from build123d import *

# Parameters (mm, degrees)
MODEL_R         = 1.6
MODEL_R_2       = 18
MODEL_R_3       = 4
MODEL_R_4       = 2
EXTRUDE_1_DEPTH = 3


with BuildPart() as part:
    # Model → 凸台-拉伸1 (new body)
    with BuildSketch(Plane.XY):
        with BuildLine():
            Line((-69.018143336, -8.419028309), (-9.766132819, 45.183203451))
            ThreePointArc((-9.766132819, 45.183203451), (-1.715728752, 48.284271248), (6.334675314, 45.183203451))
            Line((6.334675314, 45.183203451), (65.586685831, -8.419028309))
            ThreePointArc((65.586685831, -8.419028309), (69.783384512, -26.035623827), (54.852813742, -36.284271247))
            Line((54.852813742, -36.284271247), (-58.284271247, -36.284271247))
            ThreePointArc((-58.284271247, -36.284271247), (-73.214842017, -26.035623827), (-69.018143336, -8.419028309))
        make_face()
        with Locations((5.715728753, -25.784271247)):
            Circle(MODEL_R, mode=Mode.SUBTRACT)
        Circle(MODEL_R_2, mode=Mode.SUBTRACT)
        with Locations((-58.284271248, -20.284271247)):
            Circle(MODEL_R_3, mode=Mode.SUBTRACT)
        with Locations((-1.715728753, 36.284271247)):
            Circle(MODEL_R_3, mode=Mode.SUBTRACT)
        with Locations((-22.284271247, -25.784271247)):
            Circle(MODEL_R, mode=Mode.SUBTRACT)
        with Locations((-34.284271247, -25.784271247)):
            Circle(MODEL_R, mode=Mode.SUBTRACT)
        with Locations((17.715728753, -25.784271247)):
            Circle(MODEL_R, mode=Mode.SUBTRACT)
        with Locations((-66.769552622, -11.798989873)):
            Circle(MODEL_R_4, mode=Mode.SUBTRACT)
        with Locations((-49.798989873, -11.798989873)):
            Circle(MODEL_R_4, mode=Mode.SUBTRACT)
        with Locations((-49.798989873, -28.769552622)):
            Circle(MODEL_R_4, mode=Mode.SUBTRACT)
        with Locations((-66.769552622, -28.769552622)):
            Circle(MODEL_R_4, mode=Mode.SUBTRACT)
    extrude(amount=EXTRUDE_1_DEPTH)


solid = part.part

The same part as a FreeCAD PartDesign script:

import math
import FreeCAD as App
import Part
import Sketcher
Q = App.Units.Quantity

doc = App.newDocument("Part")
body = doc.addObject("PartDesign::Body", "Body")

# Sketch on XY plane
sketch1 = doc.addObject("Sketcher::SketchObject", "Sketch")
body.addObject(sketch1)
sketch1.AttachmentSupport = (doc.XY_Plane, [""])
sketch1.MapMode = "FlatFace"
sketch1.addGeometry([
    Part.LineSegment(App.Vector(-9.8, 45.2, 0), App.Vector(-69, -8.4, 0)),  # 0
    Part.ArcOfCircle(Part.Circle(App.Vector(-58.3, -20.3, 0), App.Vector(0, 0, 1), 16), math.radians(132), math.radians(270)),  # 1
    Part.LineSegment(App.Vector(-58.3, -36.3, 0), App.Vector(54.9, -36.3, 0)),  # 2
    Part.ArcOfCircle(Part.Circle(App.Vector(54.9, -20.3, 0), App.Vector(0, 0, 1), 16), math.radians(-90), math.radians(48)),  # 3
    Part.LineSegment(App.Vector(65.6, -8.4, 0), App.Vector(6.3, 45.2, 0)),  # 4
    Part.ArcOfCircle(Part.Circle(App.Vector(-1.7, 36.3, 0), App.Vector(0, 0, 1), 12), math.radians(48), math.radians(132)),  # 5
    Part.Circle(App.Vector(17.7, -25.8, 0), App.Vector(0, 0, 1), 1.6),  # 6
    Part.Circle(App.Vector(5.7, -25.8, 0), App.Vector(0, 0, 1), 1.6),  # 7
    Part.Circle(App.Vector(-22.3, -25.8, 0), App.Vector(0, 0, 1), 1.6),  # 8
    Part.Circle(App.Vector(0, 0, 0), App.Vector(0, 0, 1), 18),  # 9
    Part.Circle(App.Vector(-34.3, -25.8, 0), App.Vector(0, 0, 1), 1.6),  # 10
    Part.Circle(App.Vector(-49.8, -28.8, 0), App.Vector(0, 0, 1), 2),  # 11
    Part.Circle(App.Vector(-66.8, -28.8, 0), App.Vector(0, 0, 1), 2),  # 12
    Part.Circle(App.Vector(-58.3, -20.3, 0), App.Vector(0, 0, 1), 4),  # 13
    Part.Circle(App.Vector(-49.8, -11.8, 0), App.Vector(0, 0, 1), 2),  # 14
    Part.Circle(App.Vector(-66.8, -11.8, 0), App.Vector(0, 0, 1), 2),  # 15
    Part.Circle(App.Vector(-1.7, 36.3, 0), App.Vector(0, 0, 1), 4),  # 16
], False)
sketch1.addConstraint([
    Sketcher.Constraint("Tangent", 0, 2, 1, 1),
    Sketcher.Constraint("Tangent", 1, 2, 2, 1),
    Sketcher.Constraint("Tangent", 2, 2, 3, 1),
    Sketcher.Constraint("Tangent", 3, 2, 4, 1),
    Sketcher.Constraint("Tangent", 4, 2, 5, 1),
    Sketcher.Constraint("Tangent", 5, 2, 0, 1),
    Sketcher.Constraint("Horizontal", 2),
    Sketcher.Constraint("Coincident", 9, 3, -1, 1),
    Sketcher.Constraint("Coincident", 13, 3, 1, 3),
    Sketcher.Constraint("Coincident", 16, 3, 5, 3),
    Sketcher.Constraint("Equal", 1, 3),
    Sketcher.Constraint("Equal", 6, 7),
    Sketcher.Constraint("Equal", 7, 8),
    Sketcher.Constraint("Equal", 8, 10),
    Sketcher.Constraint("Equal", 11, 12),
    Sketcher.Constraint("Equal", 12, 14),
    Sketcher.Constraint("Equal", 14, 15),
    Sketcher.Constraint("Equal", 13, 16),
    Sketcher.Constraint("Horizontal", 6, 3, 7, 3),
    Sketcher.Constraint("Horizontal", 7, 3, 8, 3),
    Sketcher.Constraint("Horizontal", 8, 3, 10, 3),
    Sketcher.Constraint("Horizontal", 11, 3, 12, 3),
    Sketcher.Constraint("Horizontal", 14, 3, 15, 3),
    Sketcher.Constraint("Horizontal", 0, 2, 3, 2),
    Sketcher.Constraint("Vertical", 11, 3, 14, 3),
    Sketcher.Constraint("Vertical", 12, 3, 15, 3),
    Sketcher.Constraint("Diameter", 9, Q("36 mm")),
    Sketcher.Constraint("Diameter", 11, Q("4 mm")),
    Sketcher.Constraint("Diameter", 13, Q("8 mm")),
    Sketcher.Constraint("Radius", 1, Q("16 mm")),
    Sketcher.Constraint("Radius", 5, Q("12 mm")),
    Sketcher.Constraint("Diameter", 6, Q("3.2 mm")),
    Sketcher.Constraint("DistanceX", 1, 3, 6, 3, Q("76 mm")),
    Sketcher.Constraint("DistanceX", 7, 3, 6, 3, Q("12 mm")),
    Sketcher.Constraint("DistanceX", 8, 3, 7, 3, Q("28 mm")),
    Sketcher.Constraint("DistanceX", 10, 3, 8, 3, Q("12 mm")),
    Sketcher.Constraint("DistanceY", 6, 3, 3, 3, Q("5.5 mm")),
    Sketcher.Constraint("DistanceX", 2, 1, 2, 2, Q("113.137085 mm")),
    Sketcher.Constraint("DistanceX", 1, 3, -1, 1, Q("58.284271 mm")),
    Sketcher.Constraint("DistanceY", 1, 3, -1, 1, Q("20.284271 mm")),
    Sketcher.Constraint("DistanceY", -1, 1, 5, 3, Q("36.284271 mm")),
    Sketcher.Constraint("DistanceX", 11, 3, -1, 1, Q("49.79899 mm")),
    Sketcher.Constraint("DistanceY", 14, 3, -1, 1, Q("11.79899 mm")),
    Sketcher.Constraint("DistanceY", 11, 3, 1, 3, Q("8.485281 mm")),
    Sketcher.Constraint("DistanceX", 12, 3, 1, 3, Q("8.485281 mm")),
])
pad1 = doc.addObject("PartDesign::Pad", "Pad")
body.addObject(pad1)
pad1.Profile = sketch1
pad1.Length = 3

doc.recompute()
